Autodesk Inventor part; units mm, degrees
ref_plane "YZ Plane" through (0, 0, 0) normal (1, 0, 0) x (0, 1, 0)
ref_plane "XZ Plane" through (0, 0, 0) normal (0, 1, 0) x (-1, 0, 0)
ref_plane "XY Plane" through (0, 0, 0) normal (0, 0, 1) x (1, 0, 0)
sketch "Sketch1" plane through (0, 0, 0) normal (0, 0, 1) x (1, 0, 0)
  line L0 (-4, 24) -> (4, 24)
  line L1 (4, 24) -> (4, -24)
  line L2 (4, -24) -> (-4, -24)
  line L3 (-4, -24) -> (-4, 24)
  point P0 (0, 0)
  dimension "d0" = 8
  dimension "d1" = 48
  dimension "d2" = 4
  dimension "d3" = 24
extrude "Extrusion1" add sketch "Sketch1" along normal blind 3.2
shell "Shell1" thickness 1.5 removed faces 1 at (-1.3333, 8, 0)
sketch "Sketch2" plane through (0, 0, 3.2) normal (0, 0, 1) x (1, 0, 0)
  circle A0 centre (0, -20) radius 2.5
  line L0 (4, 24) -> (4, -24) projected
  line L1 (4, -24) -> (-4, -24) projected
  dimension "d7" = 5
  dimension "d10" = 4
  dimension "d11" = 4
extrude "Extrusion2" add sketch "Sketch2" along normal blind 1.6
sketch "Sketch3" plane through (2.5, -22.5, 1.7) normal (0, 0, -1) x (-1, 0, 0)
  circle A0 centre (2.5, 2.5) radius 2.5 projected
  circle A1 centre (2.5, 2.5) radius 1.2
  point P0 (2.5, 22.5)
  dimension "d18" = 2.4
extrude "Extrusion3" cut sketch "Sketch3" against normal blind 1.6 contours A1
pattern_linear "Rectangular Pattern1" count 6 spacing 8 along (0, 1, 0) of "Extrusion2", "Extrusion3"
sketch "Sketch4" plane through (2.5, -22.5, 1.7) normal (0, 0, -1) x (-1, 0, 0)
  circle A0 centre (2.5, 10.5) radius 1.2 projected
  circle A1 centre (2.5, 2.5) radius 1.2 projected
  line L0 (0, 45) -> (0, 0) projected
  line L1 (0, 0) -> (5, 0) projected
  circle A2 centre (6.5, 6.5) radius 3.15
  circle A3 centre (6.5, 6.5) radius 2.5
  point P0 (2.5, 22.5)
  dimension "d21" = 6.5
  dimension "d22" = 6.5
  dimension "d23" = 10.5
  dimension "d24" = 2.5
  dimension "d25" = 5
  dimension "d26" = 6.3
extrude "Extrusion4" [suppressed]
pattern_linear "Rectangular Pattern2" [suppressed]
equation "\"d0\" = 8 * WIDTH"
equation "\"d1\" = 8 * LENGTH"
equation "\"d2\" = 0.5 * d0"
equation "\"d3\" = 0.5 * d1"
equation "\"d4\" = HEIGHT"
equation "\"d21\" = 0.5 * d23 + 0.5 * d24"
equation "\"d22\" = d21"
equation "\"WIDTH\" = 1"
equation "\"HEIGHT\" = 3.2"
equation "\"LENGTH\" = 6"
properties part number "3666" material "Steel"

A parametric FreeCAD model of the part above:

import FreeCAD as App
import Part
import Sketcher

V = App.Vector


def faces_at(feature, points):
    """Names of the faces that lie closest to the given points."""
    faces = feature.Shape.Faces
    near = lambda p: min(range(len(faces)), key=lambda i: faces[i].distToShape(Part.Vertex(*p))[0])
    return sorted({f"Face{near(p) + 1}" for p in points})


def add_polygon(sketch, points):
    """Adds a closed chain of lines whose ends are joined by coincident constraints."""
    first, n = sketch.GeometryCount, len(points)
    for a, b in zip(points, points[1:] + points[:1]):
        sketch.addGeometry(Part.LineSegment(App.Vector(*a, 0), App.Vector(*b, 0)), False)
    for i in range(n):
        sketch.addConstraint(Sketcher.Constraint("Coincident", first + i, 2, first + (i + 1) % n, 1))

doc = App.newDocument("Part")
body = doc.addObject("PartDesign::Body", "Body")

# Sketch on XY plane
sketch1 = body.newObject("Sketcher::SketchObject", "Sketch")
sketch1.AttachmentSupport = (doc.getObject("XY_Plane"), [""])
sketch1.MapMode = "FlatFace"
add_polygon(sketch1, [(4, 24), (-4, 24), (-4, -24), (4, -24)])  # lines 0-3
sketch1.addConstraint([
    Sketcher.Constraint("Horizontal", 0),
    Sketcher.Constraint("Vertical", 1),
    Sketcher.Constraint("Horizontal", 2),
    Sketcher.Constraint("Vertical", 3),
    Sketcher.Constraint("Symmetric", 0, 2, 2, 2, -1, 1),
    Sketcher.Constraint("DistanceX", 0, 2, 0, 1, 8.0),
    Sketcher.Constraint("DistanceY", 1, 2, 1, 1, 48.0),
])
pad1 = body.newObject("PartDesign::Pad", "Pad")
pad1.Profile = sketch1
pad1.Length = 3.2
doc.recompute()

thickness = body.newObject("PartDesign::Thickness", "Thickness")
thickness.Base = (pad1, faces_at(pad1, [(-1.333, 8, 0)]))
thickness.Value = 1.5
thickness.Reversed = True
thickness.Join = "Intersection"

# Sketch on XY plane
sketch2 = body.newObject("Sketcher::SketchObject", "Sketch001")
sketch2.AttachmentSupport = (doc.getObject("XY_Plane"), [""])
sketch2.MapMode = "FlatFace"
sketch2.AttachmentOffset = App.Placement(V(0, 0, 3.2), App.Rotation())
sketch2.addGeometry(Part.Circle(V(0, -20, 0), V(0, 0, 1), 2.5), False)
sketch2.addConstraint([
    Sketcher.Constraint("PointOnObject", 0, 3, -2),
    Sketcher.Constraint("Diameter", 0, 5.0),
    Sketcher.Constraint("DistanceY", 0, 3, -1, 1, 20.0),
])
pad2 = body.newObject("PartDesign::Pad", "Pad001")
pad2.Profile = sketch2
pad2.Length = 1.6

# Sketch on XY plane
sketch3 = body.newObject("Sketcher::SketchObject", "Sketch002")
sketch3.AttachmentSupport = (doc.getObject("XY_Plane"), [""])
sketch3.MapMode = "FlatFace"
sketch3.AttachmentOffset = App.Placement(V(0, 0, 1.7), App.Rotation())
sketch3.addGeometry(Part.Circle(V(0, -20, 0), V(0, 0, 1), 1.2), False)
sketch3.addConstraint([
    Sketcher.Constraint("PointOnObject", 0, 3, -2),
    Sketcher.Constraint("Diameter", 0, 2.4),
    Sketcher.Constraint("DistanceY", 0, 3, -1, 1, 20.0),
])
pocket1 = body.newObject("PartDesign::Pocket", "Pocket")
pocket1.Profile = sketch3
pocket1.Length = 1.6
pocket1.Reversed = True
doc.recompute()

linearpattern = body.newObject("PartDesign::LinearPattern", "LinearPattern")
linearpattern.Originals = [pad2, pocket1]
linearpattern.Direction = (doc.getObject("Y_Axis"), [""])
linearpattern.Mode = "offset"
linearpattern.Offset = 8
linearpattern.Occurrences = 6
body.Tip = linearpattern

doc.recompute()
